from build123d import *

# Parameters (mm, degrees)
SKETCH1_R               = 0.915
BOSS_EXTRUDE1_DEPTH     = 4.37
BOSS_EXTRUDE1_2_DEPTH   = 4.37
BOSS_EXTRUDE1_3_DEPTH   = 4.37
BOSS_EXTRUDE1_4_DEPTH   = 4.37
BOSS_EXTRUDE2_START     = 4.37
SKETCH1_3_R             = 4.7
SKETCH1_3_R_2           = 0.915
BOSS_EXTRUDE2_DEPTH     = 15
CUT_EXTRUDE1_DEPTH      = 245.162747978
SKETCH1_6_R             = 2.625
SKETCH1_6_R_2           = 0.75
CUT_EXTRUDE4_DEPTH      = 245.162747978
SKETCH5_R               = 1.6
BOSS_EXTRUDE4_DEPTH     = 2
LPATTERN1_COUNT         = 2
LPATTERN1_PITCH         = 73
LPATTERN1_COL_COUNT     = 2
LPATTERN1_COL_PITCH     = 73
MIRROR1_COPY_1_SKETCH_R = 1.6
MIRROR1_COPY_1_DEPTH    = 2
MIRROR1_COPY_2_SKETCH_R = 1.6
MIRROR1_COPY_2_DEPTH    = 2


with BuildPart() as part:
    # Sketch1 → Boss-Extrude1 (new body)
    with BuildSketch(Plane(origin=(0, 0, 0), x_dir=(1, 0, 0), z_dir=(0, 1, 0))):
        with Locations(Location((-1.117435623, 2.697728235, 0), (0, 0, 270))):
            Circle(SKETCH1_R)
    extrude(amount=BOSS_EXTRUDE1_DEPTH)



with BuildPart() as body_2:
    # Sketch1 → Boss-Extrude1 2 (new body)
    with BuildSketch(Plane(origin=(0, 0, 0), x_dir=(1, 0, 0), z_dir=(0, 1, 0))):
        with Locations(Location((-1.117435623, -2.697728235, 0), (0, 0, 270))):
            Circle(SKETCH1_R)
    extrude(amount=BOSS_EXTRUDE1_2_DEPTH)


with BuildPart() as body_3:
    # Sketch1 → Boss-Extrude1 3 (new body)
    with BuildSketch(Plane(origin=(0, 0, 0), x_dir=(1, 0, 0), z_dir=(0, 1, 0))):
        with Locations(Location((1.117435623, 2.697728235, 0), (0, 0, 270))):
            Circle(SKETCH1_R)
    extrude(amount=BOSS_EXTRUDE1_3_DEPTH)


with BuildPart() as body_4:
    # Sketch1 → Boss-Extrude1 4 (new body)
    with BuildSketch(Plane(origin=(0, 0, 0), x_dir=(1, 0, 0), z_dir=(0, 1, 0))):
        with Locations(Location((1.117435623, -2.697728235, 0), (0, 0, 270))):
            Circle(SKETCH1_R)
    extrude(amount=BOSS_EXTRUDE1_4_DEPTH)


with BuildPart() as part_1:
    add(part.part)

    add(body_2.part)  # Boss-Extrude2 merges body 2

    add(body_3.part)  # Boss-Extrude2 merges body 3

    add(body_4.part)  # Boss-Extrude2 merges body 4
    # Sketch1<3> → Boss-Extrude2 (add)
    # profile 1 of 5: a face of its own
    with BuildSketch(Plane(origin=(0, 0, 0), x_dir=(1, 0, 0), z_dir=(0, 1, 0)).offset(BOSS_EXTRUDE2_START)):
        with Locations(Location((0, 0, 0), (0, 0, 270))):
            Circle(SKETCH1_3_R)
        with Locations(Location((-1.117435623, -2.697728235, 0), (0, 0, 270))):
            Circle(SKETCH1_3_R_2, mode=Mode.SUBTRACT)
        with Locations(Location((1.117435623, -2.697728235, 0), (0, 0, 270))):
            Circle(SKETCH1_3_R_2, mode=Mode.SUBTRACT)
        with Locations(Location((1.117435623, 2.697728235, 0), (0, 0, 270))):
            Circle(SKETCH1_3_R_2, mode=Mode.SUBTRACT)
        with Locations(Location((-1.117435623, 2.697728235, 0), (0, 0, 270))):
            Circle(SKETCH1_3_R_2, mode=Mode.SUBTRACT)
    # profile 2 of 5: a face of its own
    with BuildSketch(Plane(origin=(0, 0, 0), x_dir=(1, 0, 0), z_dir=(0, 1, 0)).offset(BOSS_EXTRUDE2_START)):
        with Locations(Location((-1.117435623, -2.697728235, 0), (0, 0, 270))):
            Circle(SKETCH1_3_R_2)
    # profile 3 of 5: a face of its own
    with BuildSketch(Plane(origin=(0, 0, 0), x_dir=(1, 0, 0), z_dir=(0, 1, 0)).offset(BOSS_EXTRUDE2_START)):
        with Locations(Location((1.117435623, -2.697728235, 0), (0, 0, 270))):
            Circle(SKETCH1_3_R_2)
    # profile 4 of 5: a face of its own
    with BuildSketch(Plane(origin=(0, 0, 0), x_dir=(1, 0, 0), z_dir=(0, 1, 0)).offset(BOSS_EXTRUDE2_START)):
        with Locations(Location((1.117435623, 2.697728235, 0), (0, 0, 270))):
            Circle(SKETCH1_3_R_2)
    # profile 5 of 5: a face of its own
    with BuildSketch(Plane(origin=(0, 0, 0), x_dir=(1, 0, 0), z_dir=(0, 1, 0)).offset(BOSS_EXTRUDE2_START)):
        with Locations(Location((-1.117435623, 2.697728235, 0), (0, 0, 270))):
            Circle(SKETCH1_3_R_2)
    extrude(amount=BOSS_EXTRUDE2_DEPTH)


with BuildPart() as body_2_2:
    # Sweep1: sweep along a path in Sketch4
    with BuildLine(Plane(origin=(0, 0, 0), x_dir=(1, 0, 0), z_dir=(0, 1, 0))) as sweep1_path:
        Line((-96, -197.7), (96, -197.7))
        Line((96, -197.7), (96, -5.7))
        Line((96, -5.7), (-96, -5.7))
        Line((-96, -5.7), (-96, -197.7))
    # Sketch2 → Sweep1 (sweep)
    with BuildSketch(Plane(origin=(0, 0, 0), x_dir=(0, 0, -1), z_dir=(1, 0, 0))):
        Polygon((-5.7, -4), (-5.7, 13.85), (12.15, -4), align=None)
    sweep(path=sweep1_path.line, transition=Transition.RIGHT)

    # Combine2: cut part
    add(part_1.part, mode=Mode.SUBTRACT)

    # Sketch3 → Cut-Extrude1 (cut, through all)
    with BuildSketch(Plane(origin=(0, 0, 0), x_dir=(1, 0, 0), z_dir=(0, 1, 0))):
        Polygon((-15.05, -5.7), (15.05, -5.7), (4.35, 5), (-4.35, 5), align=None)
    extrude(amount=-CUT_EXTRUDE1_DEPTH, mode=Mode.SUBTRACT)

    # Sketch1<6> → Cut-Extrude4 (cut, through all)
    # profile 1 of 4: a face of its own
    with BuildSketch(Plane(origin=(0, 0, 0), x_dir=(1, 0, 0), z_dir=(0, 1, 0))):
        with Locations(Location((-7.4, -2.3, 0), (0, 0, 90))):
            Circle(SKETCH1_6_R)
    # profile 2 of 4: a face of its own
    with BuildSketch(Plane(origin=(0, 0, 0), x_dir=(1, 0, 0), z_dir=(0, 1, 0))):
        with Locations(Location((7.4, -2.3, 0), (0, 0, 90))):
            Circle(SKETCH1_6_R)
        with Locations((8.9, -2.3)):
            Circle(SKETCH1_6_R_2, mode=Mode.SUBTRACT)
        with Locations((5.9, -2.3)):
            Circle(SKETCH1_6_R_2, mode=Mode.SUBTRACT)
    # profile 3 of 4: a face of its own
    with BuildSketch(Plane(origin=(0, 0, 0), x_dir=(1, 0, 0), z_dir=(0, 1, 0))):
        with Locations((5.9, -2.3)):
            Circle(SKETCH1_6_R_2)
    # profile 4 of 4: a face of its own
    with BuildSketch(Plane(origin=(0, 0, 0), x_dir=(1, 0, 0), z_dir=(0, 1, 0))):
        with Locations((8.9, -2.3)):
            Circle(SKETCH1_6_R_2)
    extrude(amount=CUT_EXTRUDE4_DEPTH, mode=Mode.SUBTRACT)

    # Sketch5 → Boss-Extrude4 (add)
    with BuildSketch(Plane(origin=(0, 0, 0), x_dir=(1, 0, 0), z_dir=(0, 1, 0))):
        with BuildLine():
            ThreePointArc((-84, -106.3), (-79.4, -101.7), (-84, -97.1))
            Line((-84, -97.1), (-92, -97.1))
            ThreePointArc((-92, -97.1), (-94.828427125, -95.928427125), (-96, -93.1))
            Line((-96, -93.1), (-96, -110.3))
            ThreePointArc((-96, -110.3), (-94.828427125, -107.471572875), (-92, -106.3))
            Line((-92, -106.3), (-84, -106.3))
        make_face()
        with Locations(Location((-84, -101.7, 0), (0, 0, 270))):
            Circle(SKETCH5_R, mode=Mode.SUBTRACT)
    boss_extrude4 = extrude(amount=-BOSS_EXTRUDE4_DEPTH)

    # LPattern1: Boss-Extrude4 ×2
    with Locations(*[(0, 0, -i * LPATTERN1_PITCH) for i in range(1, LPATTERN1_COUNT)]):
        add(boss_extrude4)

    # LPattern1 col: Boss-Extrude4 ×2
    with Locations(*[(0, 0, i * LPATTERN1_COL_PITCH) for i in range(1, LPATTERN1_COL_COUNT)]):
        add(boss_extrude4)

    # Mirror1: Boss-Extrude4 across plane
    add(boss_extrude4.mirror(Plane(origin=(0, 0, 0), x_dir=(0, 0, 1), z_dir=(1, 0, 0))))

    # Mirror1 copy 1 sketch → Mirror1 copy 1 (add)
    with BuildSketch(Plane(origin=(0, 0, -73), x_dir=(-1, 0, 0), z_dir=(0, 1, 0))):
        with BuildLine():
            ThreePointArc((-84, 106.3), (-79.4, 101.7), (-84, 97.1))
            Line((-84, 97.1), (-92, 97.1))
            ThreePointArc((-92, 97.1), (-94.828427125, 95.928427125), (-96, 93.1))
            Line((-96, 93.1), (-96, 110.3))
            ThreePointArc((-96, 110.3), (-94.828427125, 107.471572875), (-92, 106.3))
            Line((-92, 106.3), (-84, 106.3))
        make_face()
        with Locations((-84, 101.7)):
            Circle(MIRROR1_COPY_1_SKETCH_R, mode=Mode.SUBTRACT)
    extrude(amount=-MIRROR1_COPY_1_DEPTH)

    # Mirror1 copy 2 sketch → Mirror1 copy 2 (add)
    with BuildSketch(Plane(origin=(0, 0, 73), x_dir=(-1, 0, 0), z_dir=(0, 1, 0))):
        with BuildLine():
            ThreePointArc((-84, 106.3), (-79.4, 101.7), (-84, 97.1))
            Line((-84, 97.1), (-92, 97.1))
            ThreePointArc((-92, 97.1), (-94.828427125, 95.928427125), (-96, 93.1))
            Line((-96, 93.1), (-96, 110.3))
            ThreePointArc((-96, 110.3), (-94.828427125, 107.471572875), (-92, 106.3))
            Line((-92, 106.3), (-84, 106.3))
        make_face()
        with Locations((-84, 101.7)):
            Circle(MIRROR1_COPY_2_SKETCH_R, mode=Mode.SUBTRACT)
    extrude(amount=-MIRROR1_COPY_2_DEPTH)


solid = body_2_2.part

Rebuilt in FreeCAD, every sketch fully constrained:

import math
import FreeCAD as App
import Part
import Sketcher
from FreeCAD import Vector
Q = App.Units.Quantity

doc = App.newDocument("Part")
params = doc.addObject("Spreadsheet::Sheet", "Params")
for row, (alias, value) in enumerate([
    ("sketch1_diameter", "1.83 mm"),
    ("pad1_length", "4.37 mm"),
    ("sketch2_diameter", "1.83 mm"),
    ("pad2_length", "4.37 mm"),
    ("sketch3_diameter", "1.83 mm"),
    ("pad3_length", "4.37 mm"),
    ("sketch4_diameter", "1.83 mm"),
    ("pad4_length", "4.37 mm"),
    ("sketch5_diameter", "9.4 mm"),
    ("pad5_length", "15 mm"),
    ("sketch6_width", "17.85 mm"),
    ("sketch7_width", "192 mm"),
    ("sketch8_width", "30.1 mm"),
    ("sketch8_width2", "8.7 mm"),
    ("sketch9_diameter", "5.25 mm"),
    ("pocket2_length", "245.162748 mm"),
    ("sketch10_radius", "4 mm"),
    ("sketch10_diameter", "3.2 mm"),
    ("sketch10_radius2", "4.6 mm"),
    ("sketch10_width", "8 mm"),
    ("pad6_length", "2 mm"),
    ("linearpattern_pitch", "73 mm"),
    ("linearpattern2_pitch", "73 mm"),
    ("sketch11_radius", "4 mm"),
    ("sketch11_diameter", "3.2 mm"),
    ("sketch11_radius2", "4.6 mm"),
    ("sketch11_width", "8 mm"),
    ("pad7_length", "2 mm"),
    ("sketch12_radius", "4 mm"),
    ("sketch12_diameter", "3.2 mm"),
    ("sketch12_radius2", "4.6 mm"),
    ("sketch12_width", "8 mm"),
    ("pad8_length", "2 mm"),
], start=1):
    params.set(f"A{row}", alias)
    params.set(f"B{row}", "=" + value)
    params.setAlias(f"B{row}", alias)

body = doc.addObject("PartDesign::Body", "Body")

# Sketch on XZ plane
sketch1 = body.newObject("Sketcher::SketchObject", "Sketch")
sketch1.AttachmentSupport = (doc.getObject("XZ_Plane"), [""])
sketch1.MapMode = "FlatFace"
sketch1.addGeometry(Part.Circle(Vector(-1.1, -2.7, 0), Vector(0, 0, 1), 0.9), False)
sketch1.addConstraint(Sketcher.Constraint("Diameter", 0, Q("1.83 mm")))
sketch1.addConstraint(Sketcher.Constraint("DistanceY", 0, 3, -1, 1, Q("2.697728 mm")))
sketch1.addConstraint(Sketcher.Constraint("DistanceX", 0, 3, -1, 1, Q("1.117436 mm")))
sketch1.setExpression("Constraints[0]", "Params.sketch1_diameter")
pad1 = body.newObject("PartDesign::Pad", "Pad")
pad1.Profile = sketch1
pad1.setExpression("Length", "Params.pad1_length")
pad1.Reversed = True
body2 = doc.addObject("PartDesign::Body", "Body001")

# Sketch on XZ plane
sketch2 = body2.newObject("Sketcher::SketchObject", "Sketch001")
sketch2.AttachmentSupport = (doc.getObject("XZ_Plane001"), [""])
sketch2.MapMode = "FlatFace"
sketch2.addGeometry(Part.Circle(Vector(-1.1, 2.7, 0), Vector(0, 0, 1), 0.9), False)
sketch2.addConstraint(Sketcher.Constraint("Diameter", 0, Q("1.83 mm")))
sketch2.addConstraint(Sketcher.Constraint("DistanceY", -1, 1, 0, 3, Q("2.697728 mm")))
sketch2.addConstraint(Sketcher.Constraint("DistanceX", 0, 3, -1, 1, Q("1.117436 mm")))
sketch2.setExpression("Constraints[0]", "Params.sketch2_diameter")
pad2 = body2.newObject("PartDesign::Pad", "Pad001")
pad2.Profile = sketch2
pad2.setExpression("Length", "Params.pad2_length")
pad2.Reversed = True
body3 = doc.addObject("PartDesign::Body", "Body002")

# Sketch on XZ plane
sketch3 = body3.newObject("Sketcher::SketchObject", "Sketch002")
sketch3.AttachmentSupport = (doc.getObject("XZ_Plane002"), [""])
sketch3.MapMode = "FlatFace"
sketch3.addGeometry(Part.Circle(Vector(1.1, -2.7, 0), Vector(0, 0, 1), 0.9), False)
sketch3.addConstraint(Sketcher.Constraint("Diameter", 0, Q("1.83 mm")))
sketch3.addConstraint(Sketcher.Constraint("DistanceY", 0, 3, -1, 1, Q("2.697728 mm")))
sketch3.addConstraint(Sketcher.Constraint("DistanceX", -1, 1, 0, 3, Q("1.117436 mm")))
sketch3.setExpression("Constraints[0]", "Params.sketch3_diameter")
pad3 = body3.newObject("PartDesign::Pad", "Pad002")
pad3.Profile = sketch3
pad3.setExpression("Length", "Params.pad3_length")
pad3.Reversed = True
body4 = doc.addObject("PartDesign::Body", "Body003")

# Sketch on XZ plane
sketch4 = body4.newObject("Sketcher::SketchObject", "Sketch003")
sketch4.AttachmentSupport = (doc.getObject("XZ_Plane003"), [""])
sketch4.MapMode = "FlatFace"
sketch4.addGeometry(Part.Circle(Vector(1.1, 2.7, 0), Vector(0, 0, 1), 0.9), False)
sketch4.addConstraint(Sketcher.Constraint("Diameter", 0, Q("1.83 mm")))
sketch4.addConstraint(Sketcher.Constraint("DistanceY", -1, 1, 0, 3, Q("2.697728 mm")))
sketch4.addConstraint(Sketcher.Constraint("DistanceX", -1, 1, 0, 3, Q("1.117436 mm")))
sketch4.setExpression("Constraints[0]", "Params.sketch4_diameter")
pad4 = body4.newObject("PartDesign::Pad", "Pad003")
pad4.Profile = sketch4
pad4.setExpression("Length", "Params.pad4_length")
pad4.Reversed = True
body.AllowCompound = True
doc.recompute()

boolean = body.newObject("PartDesign::Boolean", "Boolean")
boolean.Type = "Fuse"
boolean.addObjects([body2])
doc.recompute()

boolean2 = body.newObject("PartDesign::Boolean", "Boolean001")
boolean2.Type = "Fuse"
boolean2.addObjects([body3])
doc.recompute()

boolean3 = body.newObject("PartDesign::Boolean", "Boolean002")
boolean3.Type = "Fuse"
boolean3.addObjects([body4])

# Sketch on XZ plane
sketch5 = body.newObject("Sketcher::SketchObject", "Sketch004")
sketch5.AttachmentSupport = (doc.getObject("XZ_Plane"), [""])
sketch5.MapMode = "FlatFace"
sketch5.AttachmentOffset = App.Placement(Vector(0, 0, -4.37), App.Rotation())
sketch5.addGeometry(Part.Circle(Vector(0, 0, 0), Vector(0, 0, 1), 4.7), False)
sketch5.addConstraint(Sketcher.Constraint("Coincident", 0, 3, -1, 1))
sketch5.addConstraint(Sketcher.Constraint("Diameter", 0, Q("9.4 mm")))
sketch5.setExpression("Constraints[1]", "Params.sketch5_diameter")
pad5 = body.newObject("PartDesign::Pad", "Pad004")
pad5.Profile = sketch5
pad5.setExpression("Length", "Params.pad5_length")
pad5.Reversed = True
body5 = doc.addObject("PartDesign::Body", "Body004")

# Sketch on YZ plane
sketch6 = body5.newObject("Sketcher::SketchObject", "Sketch005")
sketch6.AttachmentSupport = (doc.getObject("YZ_Plane004"), [""])
sketch6.MapMode = "FlatFace"
sketch6.addGeometry(Part.LineSegment(Vector(14, 6, 0), Vector(-4, 6, 0)), False)
sketch6.addGeometry(Part.LineSegment(Vector(-4, 6, 0), Vector(-4, -12, 0)), False)
sketch6.addGeometry(Part.LineSegment(Vector(-4, -12, 0), Vector(14, 6, 0)), False)
sketch6.addConstraint(Sketcher.Constraint("Coincident", 0, 2, 1, 1))
sketch6.addConstraint(Sketcher.Constraint("Coincident", 1, 2, 2, 1))
sketch6.addConstraint(Sketcher.Constraint("Coincident", 2, 2, 0, 1))
sketch6.addConstraint(Sketcher.Constraint("Horizontal", 0))
sketch6.addConstraint(Sketcher.Constraint("Vertical", 1))
sketch6.addConstraint(Sketcher.Constraint("Equal", 0, 1))
sketch6.addConstraint(Sketcher.Constraint("DistanceX", 0, 2, -1, 1, Q("4 mm")))
sketch6.addConstraint(Sketcher.Constraint("DistanceX", 0, 2, 0, 1, Q("17.85 mm")))
sketch6.addConstraint(Sketcher.Constraint("DistanceY", -1, 1, 0, 2, Q("5.7 mm")))
sketch6.setExpression("Constraints[7]", "Params.sketch6_width")

# Sketch on XZ plane
sketch7 = body5.newObject("Sketcher::SketchObject", "Sketch006")
sketch7.AttachmentSupport = (doc.getObject("XZ_Plane004"), [""])
sketch7.MapMode = "FlatFace"
sketch7.addGeometry(Part.LineSegment(Vector(-96, 198, 0), Vector(96, 198, 0)), False)
sketch7.addGeometry(Part.LineSegment(Vector(96, 198, 0), Vector(96, 6, 0)), False)
sketch7.addGeometry(Part.LineSegment(Vector(96, 6, 0), Vector(-96, 6, 0)), False)
sketch7.addGeometry(Part.LineSegment(Vector(-96, 6, 0), Vector(-96, 198, 0)), False)
sketch7.addConstraint(Sketcher.Constraint("Coincident", 0, 2, 1, 1))
sketch7.addConstraint(Sketcher.Constraint("Coincident", 1, 2, 2, 1))
sketch7.addConstraint(Sketcher.Constraint("Coincident", 2, 2, 3, 1))
sketch7.addConstraint(Sketcher.Constraint("Coincident", 3, 2, 0, 1))
sketch7.addConstraint(Sketcher.Constraint("Horizontal", 0))
sketch7.addConstraint(Sketcher.Constraint("Vertical", 1))
sketch7.addConstraint(Sketcher.Constraint("Horizontal", 2))
sketch7.addConstraint(Sketcher.Constraint("Vertical", 3))
sketch7.addConstraint(Sketcher.Constraint("Equal", 2, 1))
sketch7.addConstraint(Sketcher.Constraint("DistanceX", 0, 1, 0, 2, Q("192 mm")))
sketch7.addConstraint(Sketcher.Constraint("DistanceX", -1, 1, 0, 2, Q("96 mm")))
sketch7.addConstraint(Sketcher.Constraint("DistanceY", -1, 1, 0, 2, Q("197.7 mm")))
sketch7.setExpression("Constraints[9]", "Params.sketch7_width")
doc.recompute()

additivepipe = body5.newObject("PartDesign::AdditivePipe", "AdditivePipe")
additivepipe.Profile = sketch6
additivepipe.Spine = (sketch7, ["Edge1", "Edge2", "Edge3", "Edge4"])
additivepipe.Transition = "Right corner"
doc.recompute()

boolean4 = body5.newObject("PartDesign::Boolean", "Boolean003")
boolean4.Type = "Cut"
boolean4.addObjects([body])

# Sketch on XZ plane
sketch8 = body5.newObject("Sketcher::SketchObject", "Sketch007")
sketch8.AttachmentSupport = (doc.getObject("XZ_Plane004"), [""])
sketch8.MapMode = "FlatFace"
sketch8.addGeometry(Part.LineSegment(Vector(-15, 6, 0), Vector(15, 6, 0)), False)
sketch8.addGeometry(Part.LineSegment(Vector(15, 6, 0), Vector(4, -5, 0)), False)
sketch8.addGeometry(Part.LineSegment(Vector(4, -5, 0), Vector(-4, -5, 0)), False)
sketch8.addGeometry(Part.LineSegment(Vector(-4, -5, 0), Vector(-15, 6, 0)), False)
sketch8.addConstraint(Sketcher.Constraint("Coincident", 0, 2, 1, 1))
sketch8.addConstraint(Sketcher.Constraint("Coincident", 1, 2, 2, 1))
sketch8.addConstraint(Sketcher.Constraint("Coincident", 2, 2, 3, 1))
sketch8.addConstraint(Sketcher.Constraint("Coincident", 3, 2, 0, 1))
sketch8.addConstraint(Sketcher.Constraint("Horizontal", 0))
sketch8.addConstraint(Sketcher.Constraint("Horizontal", 2))
sketch8.addConstraint(Sketcher.Constraint("Perpendicular", 1, 3))
sketch8.addConstraint(Sketcher.Constraint("Equal", 1, 3))
sketch8.addConstraint(Sketcher.Constraint("DistanceX", 0, 1, 0, 2, Q("30.1 mm")))
sketch8.addConstraint(Sketcher.Constraint("DistanceX", 2, 2, 2, 1, Q("8.7 mm")))
sketch8.addConstraint(Sketcher.Constraint("DistanceY", 1, 2, -1, 1, Q("5 mm")))
sketch8.addConstraint(Sketcher.Constraint("DistanceX", -1, 1, 0, 2, Q("15.05 mm")))
sketch8.setExpression("Constraints[8]", "Params.sketch8_width")
sketch8.setExpression("Constraints[9]", "Params.sketch8_width2")
pocket1 = body5.newObject("PartDesign::Pocket", "Pocket")
pocket1.Profile = sketch8
pocket1.Type = "ThroughAll"
pocket1.Reversed = True

# Sketch on XZ plane
sketch9 = body5.newObject("Sketcher::SketchObject", "Sketch008")
sketch9.AttachmentSupport = (doc.getObject("XZ_Plane004"), [""])
sketch9.MapMode = "FlatFace"
sketch9.addGeometry(Part.Circle(Vector(-7.4, 2.3, 0), Vector(0, 0, 1), 2.6), False)
sketch9.addGeometry(Part.Circle(Vector(7.4, 2.3, 0), Vector(0, 0, 1), 2.6), False)
sketch9.addConstraint(Sketcher.Constraint("Equal", 0, 1))
sketch9.addConstraint(Sketcher.Constraint("Symmetric", 0, 3, 1, 3, -2))
sketch9.addConstraint(Sketcher.Constraint("Diameter", 0, Q("5.25 mm")))
sketch9.addConstraint(Sketcher.Constraint("DistanceX", 0, 3, -1, 1, Q("7.4 mm")))
sketch9.addConstraint(Sketcher.Constraint("DistanceY", -1, 1, 0, 3, Q("2.3 mm")))
sketch9.setExpression("Constraints[2]", "Params.sketch9_diameter")
pocket2 = body5.newObject("PartDesign::Pocket", "Pocket001")
pocket2.Profile = sketch9
pocket2.setExpression("Length", "Params.pocket2_length")

# Sketch on XZ plane
sketch10 = body5.newObject("Sketcher::SketchObject", "Sketch009")
sketch10.AttachmentSupport = (doc.getObject("XZ_Plane004"), [""])
sketch10.MapMode = "FlatFace"
sketch10.addGeometry(Part.ArcOfCircle(Part.Circle(Vector(-84, 101.7, 0), Vector(0, 0, 1), 4.6), math.radians(-90), math.radians(90)), False)
sketch10.addGeometry(Part.LineSegment(Vector(-84, 97.1, 0), Vector(-92, 97.1, 0)), False)
sketch10.addGeometry(Part.ArcOfCircle(Part.Circle(Vector(-92, 93.1, 0), Vector(0, 0, 1), 4), math.radians(90), math.radians(180)), False)
sketch10.addGeometry(Part.LineSegment(Vector(-96, 93.1, 0), Vector(-96, 110.3, 0)), False)
sketch10.addGeometry(Part.ArcOfCircle(Part.Circle(Vector(-92, 110.3, 0), Vector(0, 0, 1), 4), math.radians(180), math.radians(270)), False)
sketch10.addGeometry(Part.LineSegment(Vector(-92, 106.3, 0), Vector(-84, 106.3, 0)), False)
sketch10.addGeometry(Part.Circle(Vector(-84, 101.7, 0), Vector(0, 0, 1), 1.6), False)
sketch10.addConstraint(Sketcher.Constraint("Tangent", 0, 1, 1, 1))
sketch10.addConstraint(Sketcher.Constraint("Tangent", 1, 2, 2, 1))
sketch10.addConstraint(Sketcher.Constraint("Tangent", 2, 2, 3, 1))
sketch10.addConstraint(Sketcher.Constraint("Tangent", 3, 2, 4, 1))
sketch10.addConstraint(Sketcher.Constraint("Tangent", 4, 2, 5, 1))
sketch10.addConstraint(Sketcher.Constraint("Tangent", 5, 2, 0, 2))
sketch10.addConstraint(Sketcher.Constraint("Horizontal", 1))
sketch10.addConstraint(Sketcher.Constraint("Vertical", 3))
sketch10.addConstraint(Sketcher.Constraint("Horizontal", 5))
sketch10.addConstraint(Sketcher.Constraint("Coincident", 6, 3, 0, 3))
sketch10.addConstraint(Sketcher.Constraint("Equal", 2, 4))
sketch10.addConstraint(Sketcher.Constraint("Radius", 2, Q("4 mm")))
sketch10.addConstraint(Sketcher.Constraint("Diameter", 6, Q("3.2 mm")))
sketch10.addConstraint(Sketcher.Constraint("Radius", 0, Q("4.6 mm")))
sketch10.addConstraint(Sketcher.Constraint("DistanceX", 1, 2, 1, 1, Q("8 mm")))
sketch10.addConstraint(Sketcher.Constraint("DistanceX", 0, 3, -1, 1, Q("84 mm")))
sketch10.addConstraint(Sketcher.Constraint("DistanceY", -1, 1, 0, 3, Q("101.7 mm")))
sketch10.setExpression("Constraints[11]", "Params.sketch10_radius")
sketch10.setExpression("Constraints[12]", "Params.sketch10_diameter")
sketch10.setExpression("Constraints[13]", "Params.sketch10_radius2")
sketch10.setExpression("Constraints[14]", "Params.sketch10_width")
pad6 = body5.newObject("PartDesign::Pad", "Pad005")
pad6.Profile = sketch10
pad6.setExpression("Length", "Params.pad6_length")
doc.recompute()

linearpattern = body5.newObject("PartDesign::LinearPattern", "LinearPattern")
linearpattern.Originals = [pad6]
linearpattern.Direction = (doc.getObject("Z_Axis004"), [""])
linearpattern.Mode = "offset"
linearpattern.setExpression("Offset", "Params.linearpattern_pitch")
linearpattern.Occurrences = 2
linearpattern.Reversed = True
body5.Tip = linearpattern
doc.recompute()

linearpattern2 = body5.newObject("PartDesign::LinearPattern", "LinearPattern001")
linearpattern2.Originals = [pad6]
linearpattern2.Direction = (doc.getObject("Z_Axis004"), [""])
linearpattern2.Mode = "offset"
linearpattern2.setExpression("Offset", "Params.linearpattern2_pitch")
linearpattern2.Occurrences = 2
body5.Tip = linearpattern2
doc.recompute()

mirrored = body5.newObject("PartDesign::Mirrored", "Mirrored")
mirrored.Originals = [pad6]
mirrored.MirrorPlane = (doc.getObject("YZ_Plane004"), [""])
body5.Tip = mirrored

# Sketch on XZ plane
sketch11 = body5.newObject("Sketcher::SketchObject", "Sketch010")
sketch11.AttachmentSupport = (doc.getObject("XZ_Plane004"), [""])
sketch11.MapMode = "FlatFace"
sketch11.addGeometry(Part.ArcOfCircle(Part.Circle(Vector(84, 28.7, 0), Vector(0, 0, 1), 4.6), math.radians(90), math.radians(270)), False)
sketch11.addGeometry(Part.LineSegment(Vector(84, 33.3, 0), Vector(92, 33.3, 0)), False)
sketch11.addGeometry(Part.ArcOfCircle(Part.Circle(Vector(92, 37.3, 0), Vector(0, 0, 1), 4), math.radians(-90), math.radians(0)), False)
sketch11.addGeometry(Part.LineSegment(Vector(96, 37.3, 0), Vector(96, 20.1, 0)), False)
sketch11.addGeometry(Part.ArcOfCircle(Part.Circle(Vector(92, 20.1, 0), Vector(0, 0, 1), 4), math.radians(0), math.radians(90)), False)
sketch11.addGeometry(Part.LineSegment(Vector(92, 24.1, 0), Vector(84, 24.1, 0)), False)
sketch11.addGeometry(Part.Circle(Vector(84, 28.7, 0), Vector(0, 0, 1), 1.6), False)
sketch11.addConstraint(Sketcher.Constraint("Tangent", 0, 1, 1, 1))
sketch11.addConstraint(Sketcher.Constraint("Tangent", 1, 2, 2, 1))
sketch11.addConstraint(Sketcher.Constraint("Tangent", 2, 2, 3, 1))
sketch11.addConstraint(Sketcher.Constraint("Tangent", 3, 2, 4, 1))
sketch11.addConstraint(Sketcher.Constraint("Tangent", 4, 2, 5, 1))
sketch11.addConstraint(Sketcher.Constraint("Tangent", 5, 2, 0, 2))
sketch11.addConstraint(Sketcher.Constraint("Horizontal", 1))
sketch11.addConstraint(Sketcher.Constraint("Vertical", 3))
sketch11.addConstraint(Sketcher.Constraint("Horizontal", 5))
sketch11.addConstraint(Sketcher.Constraint("Coincident", 6, 3, 0, 3))
sketch11.addConstraint(Sketcher.Constraint("Equal", 2, 4))
sketch11.addConstraint(Sketcher.Constraint("Radius", 2, Q("4 mm")))
sketch11.addConstraint(Sketcher.Constraint("Diameter", 6, Q("3.2 mm")))
sketch11.addConstraint(Sketcher.Constraint("Radius", 0, Q("4.6 mm")))
sketch11.addConstraint(Sketcher.Constraint("DistanceX", 1, 1, 1, 2, Q("8 mm")))
sketch11.addConstraint(Sketcher.Constraint("DistanceX", -1, 1, 0, 3, Q("84 mm")))
sketch11.addConstraint(Sketcher.Constraint("DistanceY", -1, 1, 0, 3, Q("28.7 mm")))
sketch11.setExpression("Constraints[11]", "Params.sketch11_radius")
sketch11.setExpression("Constraints[12]", "Params.sketch11_diameter")
sketch11.setExpression("Constraints[13]", "Params.sketch11_radius2")
sketch11.setExpression("Constraints[14]", "Params.sketch11_width")
pad7 = body5.newObject("PartDesign::Pad", "Pad006")
pad7.Profile = sketch11
pad7.setExpression("Length", "Params.pad7_length")

# Sketch on XZ plane
sketch12 = body5.newObject("Sketcher::SketchObject", "Sketch011")
sketch12.AttachmentSupport = (doc.getObject("XZ_Plane004"), [""])
sketch12.MapMode = "FlatFace"
sketch12.addGeometry(Part.ArcOfCircle(Part.Circle(Vector(84, 174.7, 0), Vector(0, 0, 1), 4.6), math.radians(90), math.radians(270)), False)
sketch12.addGeometry(Part.LineSegment(Vector(84, 179.3, 0), Vector(92, 179.3, 0)), False)
sketch12.addGeometry(Part.ArcOfCircle(Part.Circle(Vector(92, 183.3, 0), Vector(0, 0, 1), 4), math.radians(-90), math.radians(0)), False)
sketch12.addGeometry(Part.LineSegment(Vector(96, 183.3, 0), Vector(96, 166.1, 0)), False)
sketch12.addGeometry(Part.ArcOfCircle(Part.Circle(Vector(92, 166.1, 0), Vector(0, 0, 1), 4), math.radians(0), math.radians(90)), False)
sketch12.addGeometry(Part.LineSegment(Vector(92, 170.1, 0), Vector(84, 170.1, 0)), False)
sketch12.addGeometry(Part.Circle(Vector(84, 174.7, 0), Vector(0, 0, 1), 1.6), False)
sketch12.addConstraint(Sketcher.Constraint("Tangent", 0, 1, 1, 1))
sketch12.addConstraint(Sketcher.Constraint("Tangent", 1, 2, 2, 1))
sketch12.addConstraint(Sketcher.Constraint("Tangent", 2, 2, 3, 1))
sketch12.addConstraint(Sketcher.Constraint("Tangent", 3, 2, 4, 1))
sketch12.addConstraint(Sketcher.Constraint("Tangent", 4, 2, 5, 1))
sketch12.addConstraint(Sketcher.Constraint("Tangent", 5, 2, 0, 2))
sketch12.addConstraint(Sketcher.Constraint("Horizontal", 1))
sketch12.addConstraint(Sketcher.Constraint("Vertical", 3))
sketch12.addConstraint(Sketcher.Constraint("Horizontal", 5))
sketch12.addConstraint(Sketcher.Constraint("Coincident", 6, 3, 0, 3))
sketch12.addConstraint(Sketcher.Constraint("Equal", 2, 4))
sketch12.addConstraint(Sketcher.Constraint("Radius", 2, Q("4 mm")))
sketch12.addConstraint(Sketcher.Constraint("Diameter", 6, Q("3.2 mm")))
sketch12.addConstraint(Sketcher.Constraint("Radius", 0, Q("4.6 mm")))
sketch12.addConstraint(Sketcher.Constraint("DistanceX", 1, 1, 1, 2, Q("8 mm")))
sketch12.addConstraint(Sketcher.Constraint("DistanceX", -1, 1, 0, 3, Q("84 mm")))
sketch12.addConstraint(Sketcher.Constraint("DistanceY", -1, 1, 0, 3, Q("174.7 mm")))
sketch12.setExpression("Constraints[11]", "Params.sketch12_radius")
sketch12.setExpression("Constraints[12]", "Params.sketch12_diameter")
sketch12.setExpression("Constraints[13]", "Params.sketch12_radius2")
sketch12.setExpression("Constraints[14]", "Params.sketch12_width")
pad8 = body5.newObject("PartDesign::Pad", "Pad007")
pad8.Profile = sketch12
pad8.setExpression("Length", "Params.pad8_length")

doc.recompute()
